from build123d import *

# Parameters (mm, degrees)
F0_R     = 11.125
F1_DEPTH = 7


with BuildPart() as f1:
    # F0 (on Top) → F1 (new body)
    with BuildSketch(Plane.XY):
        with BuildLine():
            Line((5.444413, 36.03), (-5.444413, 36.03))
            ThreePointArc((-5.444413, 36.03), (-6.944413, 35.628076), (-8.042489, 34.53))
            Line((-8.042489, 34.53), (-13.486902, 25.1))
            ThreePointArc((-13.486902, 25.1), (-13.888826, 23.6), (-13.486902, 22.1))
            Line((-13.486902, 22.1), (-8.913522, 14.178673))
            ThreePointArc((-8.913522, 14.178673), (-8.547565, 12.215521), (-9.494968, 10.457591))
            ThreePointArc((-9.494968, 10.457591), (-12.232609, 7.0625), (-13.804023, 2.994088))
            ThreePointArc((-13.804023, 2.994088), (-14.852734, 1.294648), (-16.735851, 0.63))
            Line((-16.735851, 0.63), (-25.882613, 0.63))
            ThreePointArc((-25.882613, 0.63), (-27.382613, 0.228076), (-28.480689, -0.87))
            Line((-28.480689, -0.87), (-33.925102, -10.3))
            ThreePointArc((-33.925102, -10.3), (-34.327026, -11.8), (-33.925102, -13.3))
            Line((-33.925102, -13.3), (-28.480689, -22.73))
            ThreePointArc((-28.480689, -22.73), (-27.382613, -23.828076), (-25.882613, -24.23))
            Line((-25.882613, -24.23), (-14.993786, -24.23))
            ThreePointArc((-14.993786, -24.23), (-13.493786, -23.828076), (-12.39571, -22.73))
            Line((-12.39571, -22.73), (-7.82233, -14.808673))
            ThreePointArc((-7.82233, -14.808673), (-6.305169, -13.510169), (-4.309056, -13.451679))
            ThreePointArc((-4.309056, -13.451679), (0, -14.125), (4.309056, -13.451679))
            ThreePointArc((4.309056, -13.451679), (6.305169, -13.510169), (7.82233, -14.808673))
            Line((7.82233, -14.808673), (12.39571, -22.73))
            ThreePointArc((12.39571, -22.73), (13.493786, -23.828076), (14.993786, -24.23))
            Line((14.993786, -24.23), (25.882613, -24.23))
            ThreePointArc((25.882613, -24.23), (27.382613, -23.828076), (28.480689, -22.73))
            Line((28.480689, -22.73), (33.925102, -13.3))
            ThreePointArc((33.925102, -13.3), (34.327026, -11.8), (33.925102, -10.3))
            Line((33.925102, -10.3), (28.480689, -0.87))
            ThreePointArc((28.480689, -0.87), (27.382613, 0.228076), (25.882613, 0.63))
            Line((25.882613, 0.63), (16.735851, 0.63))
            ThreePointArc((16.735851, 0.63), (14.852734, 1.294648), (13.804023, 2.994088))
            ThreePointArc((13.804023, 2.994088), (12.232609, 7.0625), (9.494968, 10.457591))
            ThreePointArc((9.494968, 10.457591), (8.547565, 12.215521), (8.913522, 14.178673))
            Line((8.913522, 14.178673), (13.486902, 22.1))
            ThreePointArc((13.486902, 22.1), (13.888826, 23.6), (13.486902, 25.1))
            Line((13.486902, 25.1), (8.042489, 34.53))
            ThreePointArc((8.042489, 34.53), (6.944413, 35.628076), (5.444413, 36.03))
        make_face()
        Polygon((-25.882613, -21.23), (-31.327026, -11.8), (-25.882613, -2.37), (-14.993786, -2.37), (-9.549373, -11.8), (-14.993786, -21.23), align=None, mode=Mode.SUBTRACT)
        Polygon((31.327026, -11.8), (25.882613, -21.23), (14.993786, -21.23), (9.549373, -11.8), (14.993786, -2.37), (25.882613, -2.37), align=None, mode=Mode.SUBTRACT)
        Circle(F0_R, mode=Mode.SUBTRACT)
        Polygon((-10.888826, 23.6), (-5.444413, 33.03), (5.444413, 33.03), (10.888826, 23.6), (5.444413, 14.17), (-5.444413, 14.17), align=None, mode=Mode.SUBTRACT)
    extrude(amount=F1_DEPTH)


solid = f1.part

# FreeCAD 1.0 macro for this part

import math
import FreeCAD as App
import Part
import Sketcher
Q = App.Units.Quantity


def add_polygon(sketch, points):
    """Adds a closed chain of lines whose ends are joined by coincident constraints."""
    first, n = sketch.GeometryCount, len(points)
    for a, b in zip(points, points[1:] + points[:1]):
        sketch.addGeometry(Part.LineSegment(App.Vector(*a, 0), App.Vector(*b, 0)), False)
    for i in range(n):
        sketch.addConstraint(Sketcher.Constraint("Coincident", first + i, 2, first + (i + 1) % n, 1))

doc = App.newDocument("Part")
body = doc.addObject("PartDesign::Body", "Body")

# Sketch on XY plane
sketch1 = doc.addObject("Sketcher::SketchObject", "Sketch")
body.addObject(sketch1)
sketch1.AttachmentSupport = (doc.XY_Plane, [""])
sketch1.MapMode = "FlatFace"
sketch1.addGeometry(Part.LineSegment(App.Vector(5.444413, 36.03, 0), App.Vector(-5.444413, 36.03, 0)), False)  # 0
sketch1.addGeometry(Part.ArcOfCircle(Part.Circle(App.Vector(-5.444413, 33.03, 0), App.Vector(0, 0, 1), 3.000001), math.radians(90.00001), math.radians(149.999994)), False)  # 1
sketch1.addGeometry(Part.LineSegment(App.Vector(-8.042489, 34.53, 0), App.Vector(-13.486902, 25.1, 0)), False)  # 2
sketch1.addGeometry(Part.ArcOfCircle(Part.Circle(App.Vector(-10.888827, 23.6, 0), App.Vector(0, 0, 1), 2.999999), math.radians(149.999985), math.radians(210.000015)), False)  # 3
sketch1.addGeometry(Part.LineSegment(App.Vector(-13.486902, 22.1, 0), App.Vector(-8.913522, 14.178673, 0)), False)  # 4
sketch1.addGeometry(Part.ArcOfCircle(Part.Circle(App.Vector(-11.511597, 12.678672, 0), App.Vector(0, 0, 1), 2.999999), math.radians(-47.762145), math.radians(30.000017)), False)  # 5
sketch1.addGeometry(Part.ArcOfCircle(Part.Circle(App.Vector(-0.000005, 0.000004, 0), App.Vector(0, 0, 1), 14.124994), math.radians(132.237868), math.radians(167.762138)), False)  # 6
sketch1.addGeometry(Part.ArcOfCircle(Part.Circle(App.Vector(-16.735852, 3.630001, 0), App.Vector(0, 0, 1), 3.000001), math.radians(-89.999989), math.radians(-12.237873)), False)  # 7
sketch1.addGeometry(Part.LineSegment(App.Vector(-16.735851, 0.63, 0), App.Vector(-25.882613, 0.63, 0)), False)  # 8
sketch1.addGeometry(Part.ArcOfCircle(Part.Circle(App.Vector(-25.882613, -2.370001, 0), App.Vector(0, 0, 1), 3.000001), math.radians(90.00001), math.radians(149.999994)), False)  # 9
sketch1.addGeometry(Part.LineSegment(App.Vector(-28.480689, -0.87, 0), App.Vector(-33.925102, -10.3, 0)), False)  # 10
sketch1.addGeometry(Part.ArcOfCircle(Part.Circle(App.Vector(-31.327027, -11.8, 0), App.Vector(0, 0, 1), 2.999999), math.radians(149.999985), math.radians(210.000015)), False)  # 11
sketch1.addGeometry(Part.LineSegment(App.Vector(-33.925102, -13.3, 0), App.Vector(-28.480689, -22.73, 0)), False)  # 12
sketch1.addGeometry(Part.ArcOfCircle(Part.Circle(App.Vector(-25.882613, -21.23, 0), App.Vector(0, 0, 1), 3.000001), math.radians(-149.999994), math.radians(-90.00001)), False)  # 13
sketch1.addGeometry(Part.LineSegment(App.Vector(-25.882613, -24.23, 0), App.Vector(-14.993786, -24.23, 0)), False)  # 14
sketch1.addGeometry(Part.ArcOfCircle(Part.Circle(App.Vector(-14.993787, -21.23, 0), App.Vector(0, 0, 1), 3.000001), math.radians(-89.99999), math.radians(-30.000006)), False)  # 15
sketch1.addGeometry(Part.LineSegment(App.Vector(-12.39571, -22.73, 0), App.Vector(-7.82233, -14.808673, 0)), False)  # 16
sketch1.addGeometry(Part.ArcOfCircle(Part.Circle(App.Vector(-5.224254, -16.308672, 0), App.Vector(0, 0, 1), 2.999999), math.radians(72.237861), math.radians(150.000017)), False)  # 17
sketch1.addGeometry(Part.ArcOfCircle(Part.Circle(App.Vector(0, 0.000005, 0), App.Vector(0, 0, 1), 14.125005), math.radians(-107.762123), math.radians(-72.237877)), False)  # 18
sketch1.addGeometry(Part.ArcOfCircle(Part.Circle(App.Vector(5.224254, -16.308672, 0), App.Vector(0, 0, 1), 2.999999), math.radians(29.999983), math.radians(107.762139)), False)  # 19
sketch1.addGeometry(Part.LineSegment(App.Vector(7.82233, -14.808673, 0), App.Vector(12.39571, -22.73, 0)), False)  # 20
sketch1.addGeometry(Part.ArcOfCircle(Part.Circle(App.Vector(14.993787, -21.23, 0), App.Vector(0, 0, 1), 3.000001), math.radians(-149.999994), math.radians(-90.00001)), False)  # 21
sketch1.addGeometry(Part.LineSegment(App.Vector(14.993786, -24.23, 0), App.Vector(25.882613, -24.23, 0)), False)  # 22
sketch1.addGeometry(Part.ArcOfCircle(Part.Circle(App.Vector(25.882613, -21.23, 0), App.Vector(0, 0, 1), 3.000001), math.radians(-89.99999), math.radians(-30.000006)), False)  # 23
sketch1.addGeometry(Part.LineSegment(App.Vector(28.480689, -22.73, 0), App.Vector(33.925102, -13.3, 0)), False)  # 24
sketch1.addGeometry(Part.ArcOfCircle(Part.Circle(App.Vector(31.327027, -11.8, 0), App.Vector(0, 0, 1), 2.999999), math.radians(-30.000015), math.radians(30.000015)), False)  # 25
sketch1.addGeometry(Part.LineSegment(App.Vector(33.925102, -10.3, 0), App.Vector(28.480689, -0.87, 0)), False)  # 26
sketch1.addGeometry(Part.ArcOfCircle(Part.Circle(App.Vector(25.882613, -2.370001, 0), App.Vector(0, 0, 1), 3.000001), math.radians(30.000006), math.radians(89.99999)), False)  # 27
sketch1.addGeometry(Part.LineSegment(App.Vector(25.882613, 0.63, 0), App.Vector(16.735851, 0.63, 0)), False)  # 28
sketch1.addGeometry(Part.ArcOfCircle(Part.Circle(App.Vector(16.735852, 3.630001, 0), App.Vector(0, 0, 1), 3.000001), math.radians(-167.762127), math.radians(-90.000011)), False)  # 29
sketch1.addGeometry(Part.ArcOfCircle(Part.Circle(App.Vector(0.000005, 0.000004, 0), App.Vector(0, 0, 1), 14.124994), math.radians(12.237862), math.radians(47.762132)), False)  # 30
sketch1.addGeometry(Part.ArcOfCircle(Part.Circle(App.Vector(11.511597, 12.678672, 0), App.Vector(0, 0, 1), 2.999999), math.radians(149.999983), math.radians(227.762145)), False)  # 31
sketch1.addGeometry(Part.LineSegment(App.Vector(8.913522, 14.178673, 0), App.Vector(13.486902, 22.1, 0)), False)  # 32
sketch1.addGeometry(Part.ArcOfCircle(Part.Circle(App.Vector(10.888827, 23.6, 0), App.Vector(0, 0, 1), 2.999999), math.radians(-30.000015), math.radians(30.000015)), False)  # 33
sketch1.addGeometry(Part.LineSegment(App.Vector(13.486902, 25.1, 0), App.Vector(8.042489, 34.53, 0)), False)  # 34
sketch1.addGeometry(Part.ArcOfCircle(Part.Circle(App.Vector(5.444413, 33.03, 0), App.Vector(0, 0, 1), 3.000001), math.radians(30.000006), math.radians(89.99999)), False)  # 35
add_polygon(sketch1, [(-14.993786, -21.23), (-25.882613, -21.23), (-31.327026, -11.8), (-25.882613, -2.37), (-14.993786, -2.37), (-9.549373, -11.8)])  # lines 36-41
add_polygon(sketch1, [(25.882613, -2.37), (31.327026, -11.8), (25.882613, -21.23), (14.993786, -21.23), (9.549373, -11.8), (14.993786, -2.37)])  # lines 42-47
sketch1.addGeometry(Part.Circle(App.Vector(0, 0, 0), App.Vector(0, 0, 1), 11.125), False)  # 48
add_polygon(sketch1, [(-5.444413, 14.17), (-10.888826, 23.6), (-5.444413, 33.03), (5.444413, 33.03), (10.888826, 23.6), (5.444413, 14.17)])  # lines 49-54
sketch1.addConstraint([
    Sketcher.Constraint("Tangent", 0, 2, 1, 1),
    Sketcher.Constraint("Tangent", 1, 2, 2, 1),
    Sketcher.Constraint("Tangent", 2, 2, 3, 1),
    Sketcher.Constraint("Tangent", 3, 2, 4, 1),
    Sketcher.Constraint("Tangent", 4, 2, 5, 2),
    Sketcher.Constraint("Tangent", 5, 1, 6, 1),
    Sketcher.Constraint("Tangent", 6, 2, 7, 2),
    Sketcher.Constraint("Tangent", 7, 1, 8, 1),
    Sketcher.Constraint("Tangent", 8, 2, 9, 1),
    Sketcher.Constraint("Tangent", 9, 2, 10, 1),
    Sketcher.Constraint("Tangent", 10, 2, 11, 1),
    Sketcher.Constraint("Tangent", 11, 2, 12, 1),
    Sketcher.Constraint("Tangent", 12, 2, 13, 1),
    Sketcher.Constraint("Tangent", 13, 2, 14, 1),
    Sketcher.Constraint("Tangent", 14, 2, 15, 1),
    Sketcher.Constraint("Tangent", 15, 2, 16, 1),
    Sketcher.Constraint("Tangent", 16, 2, 17, 2),
    Sketcher.Constraint("Tangent", 17, 1, 18, 1),
    Sketcher.Constraint("Tangent", 18, 2, 19, 2),
    Sketcher.Constraint("Tangent", 19, 1, 20, 1),
    Sketcher.Constraint("Tangent", 20, 2, 21, 1),
    Sketcher.Constraint("Tangent", 21, 2, 22, 1),
    Sketcher.Constraint("Tangent", 22, 2, 23, 1),
    Sketcher.Constraint("Tangent", 23, 2, 24, 1),
    Sketcher.Constraint("Tangent", 24, 2, 25, 1),
    Sketcher.Constraint("Tangent", 25, 2, 26, 1),
    Sketcher.Constraint("Tangent", 26, 2, 27, 1),
    Sketcher.Constraint("Tangent", 27, 2, 28, 1),
    Sketcher.Constraint("Tangent", 28, 2, 29, 2),
    Sketcher.Constraint("Tangent", 29, 1, 30, 1),
    Sketcher.Constraint("Tangent", 30, 2, 31, 2),
    Sketcher.Constraint("Tangent", 31, 1, 32, 1),
    Sketcher.Constraint("Tangent", 32, 2, 33, 1),
    Sketcher.Constraint("Tangent", 33, 2, 34, 1),
    Sketcher.Constraint("Tangent", 34, 2, 35, 1),
    Sketcher.Constraint("Tangent", 35, 2, 0, 1),
    Sketcher.Constraint("Horizontal", 0),
    Sketcher.Constraint("Horizontal", 8),
    Sketcher.Constraint("Horizontal", 14),
    Sketcher.Constraint("Horizontal", 22),
    Sketcher.Constraint("Horizontal", 28),
    Sketcher.Constraint("Horizontal", 36),
    Sketcher.Constraint("Horizontal", 39),
    Sketcher.Constraint("Horizontal", 44),
    Sketcher.Constraint("Horizontal", 47),
    Sketcher.Constraint("Horizontal", 51),
    Sketcher.Constraint("Horizontal", 54),
    Sketcher.Constraint("Coincident", 6, 3, -1, 1),
    Sketcher.Constraint("Coincident", 18, 3, -1, 1),
    Sketcher.Constraint("Coincident", 30, 3, -1, 1),
    Sketcher.Constraint("Coincident", 48, 3, -1, 1),
    Sketcher.Constraint("Coincident", 36, 2, 13, 3),
    Sketcher.Constraint("Coincident", 37, 2, 11, 3),
    Sketcher.Constraint("Coincident", 38, 2, 9, 3),
    Sketcher.Constraint("Coincident", 41, 2, 15, 3),
    Sketcher.Constraint("Coincident", 42, 2, 25, 3),
    Sketcher.Constraint("Coincident", 43, 2, 23, 3),
    Sketcher.Constraint("Coincident", 44, 2, 21, 3),
    Sketcher.Constraint("Coincident", 47, 2, 27, 3),
    Sketcher.Constraint("Coincident", 49, 2, 3, 3),
    Sketcher.Constraint("Coincident", 50, 2, 1, 3),
    Sketcher.Constraint("Coincident", 51, 2, 35, 3),
    Sketcher.Constraint("Coincident", 52, 2, 33, 3),
    Sketcher.Constraint("Equal", 1, 3),
    Sketcher.Constraint("Equal", 3, 5),
    Sketcher.Constraint("Equal", 5, 7),
    Sketcher.Constraint("Equal", 7, 9),
    Sketcher.Constraint("Equal", 9, 11),
    Sketcher.Constraint("Equal", 11, 13),
    Sketcher.Constraint("Equal", 15, 17),
    Sketcher.Constraint("Equal", 17, 19),
    Sketcher.Constraint("Equal", 19, 21),
    Sketcher.Constraint("Equal", 23, 25),
    Sketcher.Constraint("Equal", 25, 27),
    Sketcher.Constraint("Equal", 27, 29),
    Sketcher.Constraint("Equal", 6, 30),
    Sketcher.Constraint("Equal", 29, 31),
    Sketcher.Constraint("Equal", 31, 33),
    Sketcher.Constraint("Symmetric", 15, 3, 21, 3, -2),
    Sketcher.Constraint("Symmetric", 11, 3, 25, 3, -2),
    Sketcher.Constraint("Symmetric", 9, 3, 27, 3, -2),
    Sketcher.Constraint("Symmetric", 3, 3, 33, 3, -2),
    Sketcher.Constraint("Symmetric", 40, 2, 45, 2, -2),
    Sketcher.Constraint("Parallel", 2, 10),
    Sketcher.Constraint("Parallel", 4, 12),
    Sketcher.Constraint("Parallel", 10, 16),
    Sketcher.Constraint("Parallel", 12, 20),
    Sketcher.Constraint("Parallel", 16, 24),
    Sketcher.Constraint("Parallel", 20, 26),
    Sketcher.Constraint("Parallel", 24, 32),
    Sketcher.Constraint("Parallel", 26, 34),
    Sketcher.Constraint("Parallel", 37, 40),
    Sketcher.Constraint("Parallel", 38, 41),
    Sketcher.Constraint("Parallel", 43, 46),
    Sketcher.Constraint("Parallel", 45, 49),
    Sketcher.Constraint("Parallel", 50, 53),
    Sketcher.Constraint("Horizontal", 37, 2, 40, 2),
    Sketcher.Constraint("Vertical", 9, 3, 13, 3),
    Sketcher.Constraint("Vertical", 51, 2, 53, 2),
    Sketcher.Constraint("Equal", 0, 14),
    Sketcher.Constraint("Equal", 2, 10),
    Sketcher.Constraint("Equal", 4, 16),
    Sketcher.Constraint("Radius", 1, Q("3.000001 mm")),
    Sketcher.Constraint("Diameter", 48, Q("22.25 mm")),
    Sketcher.Constraint("Angle", 2, Q("-120 deg")),
    Sketcher.Constraint("DistanceY", -1, 1, 3, 3, Q("23.6 mm")),
    Sketcher.Constraint("DistanceY", 11, 3, -1, 1, Q("11.8 mm")),
    Sketcher.Constraint("DistanceY", -1, 1, 1, 3, Q("33.03 mm")),
    Sketcher.Constraint("Radius", 6, Q("14.124994 mm")),
    Sketcher.Constraint("Radius", 18, Q("14.125005 mm")),
    Sketcher.Constraint("DistanceX", 8, 2, 8, 1, Q("9.146762 mm")),
])
pad1 = doc.addObject("PartDesign::Pad", "Pad")
body.addObject(pad1)
pad1.Profile = sketch1
pad1.Length = 7

doc.recompute()
